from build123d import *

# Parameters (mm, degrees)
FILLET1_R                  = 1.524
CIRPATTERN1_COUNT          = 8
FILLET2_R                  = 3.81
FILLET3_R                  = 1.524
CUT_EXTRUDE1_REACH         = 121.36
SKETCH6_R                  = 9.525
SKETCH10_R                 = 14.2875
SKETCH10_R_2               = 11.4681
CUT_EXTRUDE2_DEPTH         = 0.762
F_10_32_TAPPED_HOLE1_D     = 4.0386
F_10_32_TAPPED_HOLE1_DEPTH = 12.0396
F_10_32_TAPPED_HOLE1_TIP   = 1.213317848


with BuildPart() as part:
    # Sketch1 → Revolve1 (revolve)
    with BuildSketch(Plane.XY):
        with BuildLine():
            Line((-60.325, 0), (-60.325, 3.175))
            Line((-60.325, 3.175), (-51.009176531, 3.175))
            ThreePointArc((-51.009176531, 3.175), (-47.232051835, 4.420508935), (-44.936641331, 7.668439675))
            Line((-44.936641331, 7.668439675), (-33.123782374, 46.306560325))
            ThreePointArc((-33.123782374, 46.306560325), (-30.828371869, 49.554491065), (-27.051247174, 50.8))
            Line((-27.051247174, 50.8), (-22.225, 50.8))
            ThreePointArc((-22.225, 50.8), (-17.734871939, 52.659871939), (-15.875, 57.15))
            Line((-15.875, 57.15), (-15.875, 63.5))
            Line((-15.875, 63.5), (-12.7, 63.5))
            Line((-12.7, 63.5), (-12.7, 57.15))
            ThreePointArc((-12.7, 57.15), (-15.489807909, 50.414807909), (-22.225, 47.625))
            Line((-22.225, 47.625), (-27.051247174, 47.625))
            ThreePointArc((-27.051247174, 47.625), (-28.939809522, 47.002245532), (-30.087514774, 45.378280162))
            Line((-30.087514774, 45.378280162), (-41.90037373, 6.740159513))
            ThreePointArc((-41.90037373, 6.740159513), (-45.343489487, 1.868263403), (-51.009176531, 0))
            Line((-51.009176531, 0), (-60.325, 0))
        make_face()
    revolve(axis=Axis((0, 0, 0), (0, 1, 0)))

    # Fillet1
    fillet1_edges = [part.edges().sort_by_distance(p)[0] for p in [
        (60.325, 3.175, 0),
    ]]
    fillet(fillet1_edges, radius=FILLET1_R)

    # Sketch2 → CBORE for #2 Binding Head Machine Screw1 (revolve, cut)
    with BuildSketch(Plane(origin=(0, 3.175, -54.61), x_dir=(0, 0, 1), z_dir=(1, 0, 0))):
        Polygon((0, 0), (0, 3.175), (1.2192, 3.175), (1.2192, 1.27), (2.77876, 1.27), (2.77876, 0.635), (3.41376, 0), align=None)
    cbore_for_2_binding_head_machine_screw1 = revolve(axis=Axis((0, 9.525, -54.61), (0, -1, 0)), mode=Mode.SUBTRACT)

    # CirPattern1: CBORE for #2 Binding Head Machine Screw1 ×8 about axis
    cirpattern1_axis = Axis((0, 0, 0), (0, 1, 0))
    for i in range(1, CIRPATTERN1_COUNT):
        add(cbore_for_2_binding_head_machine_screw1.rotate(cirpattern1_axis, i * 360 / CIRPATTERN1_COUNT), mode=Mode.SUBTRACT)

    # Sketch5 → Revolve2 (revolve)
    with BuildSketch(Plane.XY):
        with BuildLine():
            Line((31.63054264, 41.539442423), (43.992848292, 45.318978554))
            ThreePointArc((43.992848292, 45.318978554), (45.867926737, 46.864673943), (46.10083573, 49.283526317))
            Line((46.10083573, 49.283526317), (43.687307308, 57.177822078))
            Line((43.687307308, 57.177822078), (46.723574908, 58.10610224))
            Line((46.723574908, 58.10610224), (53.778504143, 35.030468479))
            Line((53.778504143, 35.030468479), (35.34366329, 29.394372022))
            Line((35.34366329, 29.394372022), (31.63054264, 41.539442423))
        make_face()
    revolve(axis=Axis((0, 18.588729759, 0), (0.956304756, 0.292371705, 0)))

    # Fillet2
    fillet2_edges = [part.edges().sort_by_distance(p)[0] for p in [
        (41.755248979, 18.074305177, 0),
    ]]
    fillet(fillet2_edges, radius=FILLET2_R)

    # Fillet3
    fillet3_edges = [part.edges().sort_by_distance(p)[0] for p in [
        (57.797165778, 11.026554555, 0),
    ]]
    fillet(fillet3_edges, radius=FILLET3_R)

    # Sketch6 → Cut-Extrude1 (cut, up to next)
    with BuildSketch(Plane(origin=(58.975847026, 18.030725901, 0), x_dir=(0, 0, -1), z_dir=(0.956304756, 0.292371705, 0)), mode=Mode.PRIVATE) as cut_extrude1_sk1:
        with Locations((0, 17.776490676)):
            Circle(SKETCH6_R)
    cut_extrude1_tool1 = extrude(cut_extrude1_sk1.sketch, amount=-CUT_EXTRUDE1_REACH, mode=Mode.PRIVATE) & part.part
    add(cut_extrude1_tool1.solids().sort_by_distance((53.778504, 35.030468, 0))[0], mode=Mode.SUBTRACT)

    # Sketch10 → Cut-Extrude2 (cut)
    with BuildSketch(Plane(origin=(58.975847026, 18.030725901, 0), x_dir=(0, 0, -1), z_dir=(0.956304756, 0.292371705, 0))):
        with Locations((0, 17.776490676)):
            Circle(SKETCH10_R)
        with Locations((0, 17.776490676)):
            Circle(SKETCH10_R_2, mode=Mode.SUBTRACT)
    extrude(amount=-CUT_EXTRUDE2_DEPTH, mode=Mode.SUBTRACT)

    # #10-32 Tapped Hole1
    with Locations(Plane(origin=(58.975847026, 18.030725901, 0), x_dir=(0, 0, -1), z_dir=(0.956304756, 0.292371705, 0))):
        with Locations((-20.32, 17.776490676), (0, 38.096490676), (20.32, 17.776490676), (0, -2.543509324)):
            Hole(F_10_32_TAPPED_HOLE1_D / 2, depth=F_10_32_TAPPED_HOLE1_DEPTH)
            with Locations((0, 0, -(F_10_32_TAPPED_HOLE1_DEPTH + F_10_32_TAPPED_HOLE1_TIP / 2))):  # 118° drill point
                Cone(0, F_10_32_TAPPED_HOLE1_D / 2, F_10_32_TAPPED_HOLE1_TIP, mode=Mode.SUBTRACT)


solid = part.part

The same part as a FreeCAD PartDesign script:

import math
import FreeCAD as App
import Part
import Sketcher

V = App.Vector
Q = App.Units.Quantity


def edges_at(feature, points):
    """Names of the edges that pass closest to the given points."""
    edges = feature.Shape.Edges
    near = lambda p: min(range(len(edges)), key=lambda i: edges[i].distToShape(Part.Vertex(*p))[0])
    return sorted({f"Edge{near(p) + 1}" for p in points})

doc = App.newDocument("Part")
body = doc.addObject("PartDesign::Body", "Body")

# Sketch on XY plane
sketch1 = body.newObject("Sketcher::SketchObject", "Sketch")
sketch1.AttachmentSupport = (doc.getObject("XY_Plane"), [""])
sketch1.MapMode = "FlatFace"
sketch1.addGeometry(Part.LineSegment(V(-60.3, 3.2, 0), V(-60.3, 0, 0)), False)
sketch1.addGeometry(Part.LineSegment(V(-60.3, 0, 0), V(-51, 0, 0)), False)
sketch1.addGeometry(Part.ArcOfCircle(Part.Circle(V(-51, 9.5, 0), V(0, 0, 1), 9.5), math.radians(-90), math.radians(-17)), False)
sketch1.addGeometry(Part.LineSegment(V(-41.9, 6.7, 0), V(-30.1, 45.4, 0)), False)
sketch1.addGeometry(Part.ArcOfCircle(Part.Circle(V(-27.1, 44.4, 0), V(0, 0, 1), 3.2), math.radians(90), math.radians(163)), False)
sketch1.addGeometry(Part.LineSegment(V(-27.1, 47.6, 0), V(-22.2, 47.6, 0)), False)
sketch1.addGeometry(Part.ArcOfCircle(Part.Circle(V(-22.2, 57.1, 0), V(0, 0, 1), 9.5), math.radians(-90), math.radians(0)), False)
sketch1.addGeometry(Part.LineSegment(V(-12.7, 57.1, 0), V(-12.7, 63.5, 0)), False)
sketch1.addGeometry(Part.LineSegment(V(-12.7, 63.5, 0), V(-15.9, 63.5, 0)), False)
sketch1.addGeometry(Part.LineSegment(V(-15.9, 63.5, 0), V(-15.9, 57.1, 0)), False)
sketch1.addGeometry(Part.ArcOfCircle(Part.Circle(V(-22.2, 57.1, 0), V(0, 0, 1), 6.3), math.radians(-90), math.radians(0)), False)
sketch1.addGeometry(Part.LineSegment(V(-22.2, 50.8, 0), V(-27.1, 50.8, 0)), False)
sketch1.addGeometry(Part.ArcOfCircle(Part.Circle(V(-27.1, 44.4, 0), V(0, 0, 1), 6.4), math.radians(90), math.radians(163)), False)
sketch1.addGeometry(Part.LineSegment(V(-33.1, 46.3, 0), V(-44.9, 7.7, 0)), False)
sketch1.addGeometry(Part.ArcOfCircle(Part.Circle(V(-51, 9.5, 0), V(0, 0, 1), 6.3), math.radians(-90), math.radians(-17)), False)
sketch1.addGeometry(Part.LineSegment(V(-51, 3.2, 0), V(-60.3, 3.2, 0)), False)
sketch1.addConstraint(Sketcher.Constraint("Coincident", 0, 2, 1, 1))
sketch1.addConstraint(Sketcher.Constraint("Tangent", 1, 2, 2, 1))
sketch1.addConstraint(Sketcher.Constraint("Tangent", 2, 2, 3, 1))
sketch1.addConstraint(Sketcher.Constraint("Tangent", 3, 2, 4, 2))
sketch1.addConstraint(Sketcher.Constraint("Tangent", 4, 1, 5, 1))
sketch1.addConstraint(Sketcher.Constraint("Tangent", 5, 2, 6, 1))
sketch1.addConstraint(Sketcher.Constraint("Tangent", 6, 2, 7, 1))
sketch1.addConstraint(Sketcher.Constraint("Coincident", 7, 2, 8, 1))
sketch1.addConstraint(Sketcher.Constraint("Coincident", 8, 2, 9, 1))
sketch1.addConstraint(Sketcher.Constraint("Tangent", 9, 2, 10, 2))
sketch1.addConstraint(Sketcher.Constraint("Tangent", 10, 1, 11, 1))
sketch1.addConstraint(Sketcher.Constraint("Tangent", 11, 2, 12, 1))
sketch1.addConstraint(Sketcher.Constraint("Tangent", 12, 2, 13, 1))
sketch1.addConstraint(Sketcher.Constraint("Tangent", 13, 2, 14, 2))
sketch1.addConstraint(Sketcher.Constraint("Tangent", 14, 1, 15, 1))
sketch1.addConstraint(Sketcher.Constraint("Coincident", 15, 2, 0, 1))
sketch1.addConstraint(Sketcher.Constraint("Vertical", 0))
sketch1.addConstraint(Sketcher.Constraint("Horizontal", 1))
sketch1.addConstraint(Sketcher.Constraint("Horizontal", 5))
sketch1.addConstraint(Sketcher.Constraint("Vertical", 7))
sketch1.addConstraint(Sketcher.Constraint("Horizontal", 8))
sketch1.addConstraint(Sketcher.Constraint("Vertical", 9))
sketch1.addConstraint(Sketcher.Constraint("Horizontal", 11))
sketch1.addConstraint(Sketcher.Constraint("Horizontal", 15))
sketch1.addConstraint(Sketcher.Constraint("Coincident", 10, 3, 6, 3))
sketch1.addConstraint(Sketcher.Constraint("Coincident", 12, 3, 4, 3))
sketch1.addConstraint(Sketcher.Constraint("Coincident", 14, 3, 2, 3))
sketch1.addConstraint(Sketcher.Constraint("Equal", 2, 6))
sketch1.addConstraint(Sketcher.Constraint("Equal", 10, 12))
sketch1.addConstraint(Sketcher.Constraint("Equal", 12, 14))
sketch1.addConstraint(Sketcher.Constraint("PointOnObject", 0, 2, -1))
sketch1.addConstraint(Sketcher.Constraint("Radius", 10, Q("0.25 in")))
sketch1.addConstraint(Sketcher.Constraint("DistanceY", -1, 1, 10, 1, Q("2 in")))
sketch1.addConstraint(Sketcher.Constraint("Angle", 3, Q("73 deg")))
sketch1.addConstraint(Sketcher.Constraint("Radius", 2, Q("0.375 in")))
sketch1.addConstraint(Sketcher.Constraint("DistanceY", 7, 1, 7, 2, Q("0.25 in")))
sketch1.addConstraint(Sketcher.Constraint("DistanceX", 6, 2, -1, 1, Q("0.5 in")))
sketch1.addConstraint(Sketcher.Constraint("DistanceX", 0, 2, 10, 3, Q("1.5 in")))
sketch1.addConstraint(Sketcher.Constraint("DistanceX", 1, 1, 1, 2, 9.315823))
revolution = body.newObject("PartDesign::Revolution", "Revolution")
revolution.Profile = sketch1
revolution.ReferenceAxis = (sketch1, ["V_Axis"])
revolution.Angle = 360
doc.recompute()

fillet = body.newObject("PartDesign::Fillet", "Fillet")
fillet.Base = (revolution, edges_at(revolution, [(60.325, 3.175, 0)]))
fillet.Radius = Q("0.06 in")

# Sketch on YZ plane
sketch2 = body.newObject("Sketcher::SketchObject", "Sketch001")
sketch2.AttachmentSupport = (doc.getObject("YZ_Plane"), [""])
sketch2.MapMode = "FlatFace"
sketch2.addGeometry(Part.LineSegment(V(0, -54.6, 0), V(3.2, -54.6, 0)), False)
sketch2.addGeometry(Part.LineSegment(V(3.2, -54.6, 0), V(3.2, -51.2, 0)), False)
sketch2.addGeometry(Part.LineSegment(V(3.2, -51.2, 0), V(2.5, -51.8, 0)), False)
sketch2.addGeometry(Part.LineSegment(V(2.5, -51.8, 0), V(1.9, -51.8, 0)), False)
sketch2.addGeometry(Part.LineSegment(V(1.9, -51.8, 0), V(1.9, -53.4, 0)), False)
sketch2.addGeometry(Part.LineSegment(V(1.9, -53.4, 0), V(0, -53.4, 0)), False)
sketch2.addGeometry(Part.LineSegment(V(0, -53.4, 0), V(0, -54.6, 0)), False)
sketch2.addGeometry(Part.LineSegment(V(3.2, -54.6, 0), V(0, -54.6, 0)), True)  # axis
sketch2.addConstraint(Sketcher.Constraint("Coincident", 0, 2, 1, 1))
sketch2.addConstraint(Sketcher.Constraint("Coincident", 1, 2, 2, 1))
sketch2.addConstraint(Sketcher.Constraint("Coincident", 2, 2, 3, 1))
sketch2.addConstraint(Sketcher.Constraint("Coincident", 3, 2, 4, 1))
sketch2.addConstraint(Sketcher.Constraint("Coincident", 4, 2, 5, 1))
sketch2.addConstraint(Sketcher.Constraint("Coincident", 5, 2, 6, 1))
sketch2.addConstraint(Sketcher.Constraint("Coincident", 6, 2, 0, 1))
sketch2.addConstraint(Sketcher.Constraint("Horizontal", 0))
sketch2.addConstraint(Sketcher.Constraint("Vertical", 1))
sketch2.addConstraint(Sketcher.Constraint("Horizontal", 3))
sketch2.addConstraint(Sketcher.Constraint("Vertical", 4))
sketch2.addConstraint(Sketcher.Constraint("Horizontal", 5))
sketch2.addConstraint(Sketcher.Constraint("Vertical", 6))
sketch2.addConstraint(Sketcher.Constraint("Horizontal", 7))
sketch2.addConstraint(Sketcher.Constraint("Coincident", 7, 1, 0, 2))
sketch2.addConstraint(Sketcher.Constraint("PointOnObject", 5, 2, -2))
sketch2.addConstraint(Sketcher.Constraint("PointOnObject", 7, 2, -2))
sketch2.addConstraint(Sketcher.Constraint("Angle", 2, Q("-135 deg")))
sketch2.addConstraint(Sketcher.Constraint("DistanceX", -1, 1, 2, 2, Q("0.1 in")))
sketch2.addConstraint(Sketcher.Constraint("DistanceX", 0, 1, 0, 2, Q("0.125 in")))
sketch2.addConstraint(Sketcher.Constraint("DistanceX", 3, 2, 3, 1, Q("0.025 in")))
sketch2.addConstraint(Sketcher.Constraint("DistanceY", 6, 2, 6, 1, Q("0.048 in")))
sketch2.addConstraint(Sketcher.Constraint("DistanceY", 0, 2, -1, 1, Q("2.15 in")))
sketch2.addConstraint(Sketcher.Constraint("DistanceY", 1, 1, 1, 2, Q("0.1344 in")))
groove = body.newObject("PartDesign::Groove", "Groove")
groove.Profile = sketch2
groove.ReferenceAxis = (sketch2, ["Axis0"])
groove.Angle = 360
doc.recompute()

polarpattern = body.newObject("PartDesign::PolarPattern", "PolarPattern")
polarpattern.Originals = [groove]
polarpattern.Axis = (doc.getObject("Y_Axis"), [""])
polarpattern.Angle = 360
polarpattern.Occurrences = 8
body.Tip = polarpattern

# Sketch on XY plane
sketch3 = body.newObject("Sketcher::SketchObject", "Sketch002")
sketch3.AttachmentSupport = (doc.getObject("XY_Plane"), [""])
sketch3.MapMode = "FlatFace"
sketch3.addGeometry(Part.LineSegment(V(44, 45.3, 0), V(31.6, 41.5, 0)), False)
sketch3.addGeometry(Part.LineSegment(V(31.6, 41.5, 0), V(35.3, 29.4, 0)), False)
sketch3.addGeometry(Part.LineSegment(V(35.3, 29.4, 0), V(53.8, 35, 0)), False)
sketch3.addGeometry(Part.LineSegment(V(53.8, 35, 0), V(46.7, 58.1, 0)), False)
sketch3.addGeometry(Part.LineSegment(V(46.7, 58.1, 0), V(43.7, 57.2, 0)), False)
sketch3.addGeometry(Part.LineSegment(V(43.7, 57.2, 0), V(46.1, 49.3, 0)), False)
sketch3.addGeometry(Part.ArcOfCircle(Part.Circle(V(43.1, 48.4, 0), V(0, 0, 1), 3.2), math.radians(-73), math.radians(17)), False)
sketch3.addGeometry(Part.LineSegment(V(35.3, 29.4, 0), V(53.8, 35, 0)), True)  # axis
sketch3.addConstraint(Sketcher.Constraint("Coincident", 0, 2, 1, 1))
sketch3.addConstraint(Sketcher.Constraint("Coincident", 1, 2, 2, 1))
sketch3.addConstraint(Sketcher.Constraint("Coincident", 2, 2, 3, 1))
sketch3.addConstraint(Sketcher.Constraint("Coincident", 3, 2, 4, 1))
sketch3.addConstraint(Sketcher.Constraint("Coincident", 4, 2, 5, 1))
sketch3.addConstraint(Sketcher.Constraint("Tangent", 5, 2, 6, 2))
sketch3.addConstraint(Sketcher.Constraint("Tangent", 6, 1, 0, 1))
sketch3.addConstraint(Sketcher.Constraint("Coincident", 7, 1, 1, 2))
sketch3.addConstraint(Sketcher.Constraint("Coincident", 7, 2, 2, 2))
sketch3.addConstraint(Sketcher.Constraint("Perpendicular", 0, 1))
sketch3.addConstraint(Sketcher.Constraint("Perpendicular", 1, 2))
sketch3.addConstraint(Sketcher.Constraint("Perpendicular", 2, 3))
sketch3.addConstraint(Sketcher.Constraint("Perpendicular", 3, 4))
sketch3.addConstraint(Sketcher.Constraint("Perpendicular", 4, 5))
sketch3.addConstraint(Sketcher.Constraint("Angle", 0, Q("-163 deg")))
sketch3.addConstraint(Sketcher.Constraint("Radius", 6, Q("0.125 in")))
sketch3.addConstraint(Sketcher.Constraint("Distance", 1, Q("0.5 in")))
sketch3.addConstraint(Sketcher.Constraint("Distance", 3, Q("0.95 in")))
sketch3.addConstraint(Sketcher.Constraint("Distance", 4, Q("0.125 in")))
sketch3.addConstraint(Sketcher.Constraint("Distance", 0, 12.927161))
sketch3.addConstraint(Sketcher.Constraint("DistanceX", -1, 1, 6, 3, 43.064568))
sketch3.addConstraint(Sketcher.Constraint("DistanceY", -1, 1, 2, 2, 35.030468))
revolution2 = body.newObject("PartDesign::Revolution", "Revolution001")
revolution2.Profile = sketch3
revolution2.ReferenceAxis = (sketch3, ["Axis0"])
revolution2.Angle = 360
doc.recompute()

fillet2 = body.newObject("PartDesign::Fillet", "Fillet001")
fillet2.Base = (revolution2, edges_at(revolution2, [(41.755, 18.074, 0)]))
fillet2.Radius = Q("0.15 in")
doc.recompute()

fillet3 = body.newObject("PartDesign::Fillet", "Fillet002")
fillet3.Base = (fillet2, edges_at(fillet2, [(57.797, 11.027, 0)]))
fillet3.Radius = Q("0.06 in")

# Sketch on an angled plane
sketch4 = body.newObject("Sketcher::SketchObject", "Sketch003")
sketch4.Placement = App.Placement(V(58.975847, 18.030726, 0), App.Rotation(V(0, 0, -1), V(-0.292371705, 0.956304756, 0), V(0.956304756, 0.292371705, 0), "ZXY"))
sketch4.addGeometry(Part.Circle(V(0, 18, 0), V(0, 0, 1), 10), False)
sketch4.addConstraint(Sketcher.Constraint("PointOnObject", 0, 3, -2))
sketch4.addConstraint(Sketcher.Constraint("Diameter", 0, Q("0.75 in")))
sketch4.addConstraint(Sketcher.Constraint("DistanceY", -1, 1, 0, 3, 17.776491))
pocket1 = body.newObject("PartDesign::Pocket", "Pocket")
pocket1.Profile = sketch4
pocket1.Type = "UpToFirst"

# Sketch on an angled plane
sketch5 = body.newObject("Sketcher::SketchObject", "Sketch004")
sketch5.Placement = App.Placement(V(58.975847, 18.030726, 0), App.Rotation(V(0, 0, -1), V(-0.292371705, 0.956304756, 0), V(0.956304756, 0.292371705, 0), "ZXY"))
sketch5.addGeometry(Part.Circle(V(0, 18, 0), V(0, 0, 1), 14), False)
sketch5.addGeometry(Part.Circle(V(0, 18, 0), V(0, 0, 1), 11), False)
sketch5.addConstraint(Sketcher.Constraint("Coincident", 1, 3, 0, 3))
sketch5.addConstraint(Sketcher.Constraint("PointOnObject", 0, 3, -2))
sketch5.addConstraint(Sketcher.Constraint("Diameter", 0, Q("1.125 in")))
sketch5.addConstraint(Sketcher.Constraint("Diameter", 1, Q("0.903 in")))
sketch5.addConstraint(Sketcher.Constraint("DistanceY", -1, 1, 0, 3, 17.776491))
pocket2 = body.newObject("PartDesign::Pocket", "Pocket001")
pocket2.Profile = sketch5
pocket2.Length = Q("0.03 in")

# Sketch on an angled plane
sketch6 = body.newObject("Sketcher::SketchObject", "Sketch005")
sketch6.Placement = App.Placement(V(58.975847, 18.030726, 0), App.Rotation(V(0, 0, -1), V(-0.292371705, 0.956304756, 0), V(0.956304756, 0.292371705, 0), "ZXY"))
sketch6.addGeometry(Part.Circle(V(-20.3, 17.8, 0), V(0, 0, 1), 2), False)
sketch6.addGeometry(Part.Circle(V(0, 38.1, 0), V(0, 0, 1), 2), False)
sketch6.addGeometry(Part.Circle(V(20.3, 17.8, 0), V(0, 0, 1), 2), False)
sketch6.addGeometry(Part.Circle(V(0, -2.5, 0), V(0, 0, 1), 2), False)
sketch6.addConstraint(Sketcher.Constraint("Equal", 0, 1))
sketch6.addConstraint(Sketcher.Constraint("Equal", 1, 2))
sketch6.addConstraint(Sketcher.Constraint("Equal", 2, 3))
sketch6.addConstraint(Sketcher.Constraint("Symmetric", 0, 3, 2, 3, -2))
sketch6.addConstraint(Sketcher.Constraint("PointOnObject", 1, 3, -2))
sketch6.addConstraint(Sketcher.Constraint("PointOnObject", 3, 3, -2))
sketch6.addConstraint(Sketcher.Constraint("Diameter", 0, Q("0.159 in")))
sketch6.addConstraint(Sketcher.Constraint("DistanceX", 0, 3, -1, 1, Q("0.8 in")))
sketch6.addConstraint(Sketcher.Constraint("DistanceY", 0, 3, 1, 3, Q("0.8 in")))
sketch6.addConstraint(Sketcher.Constraint("DistanceY", 3, 3, 0, 3, Q("0.8 in")))
sketch6.addConstraint(Sketcher.Constraint("DistanceY", -1, 1, 0, 3, 17.776491))
doc.recompute()
hole = body.newObject("PartDesign::Hole", "Hole")
hole.Profile = sketch6
hole.ThreadType = "None"
hole.Diameter = Q("0.159 in")
hole.DepthType = "Dimension"
hole.Depth = Q("0.474 in")
hole.DrillPoint = "Angled"
hole.DrillPointAngle = 118

doc.recompute()
